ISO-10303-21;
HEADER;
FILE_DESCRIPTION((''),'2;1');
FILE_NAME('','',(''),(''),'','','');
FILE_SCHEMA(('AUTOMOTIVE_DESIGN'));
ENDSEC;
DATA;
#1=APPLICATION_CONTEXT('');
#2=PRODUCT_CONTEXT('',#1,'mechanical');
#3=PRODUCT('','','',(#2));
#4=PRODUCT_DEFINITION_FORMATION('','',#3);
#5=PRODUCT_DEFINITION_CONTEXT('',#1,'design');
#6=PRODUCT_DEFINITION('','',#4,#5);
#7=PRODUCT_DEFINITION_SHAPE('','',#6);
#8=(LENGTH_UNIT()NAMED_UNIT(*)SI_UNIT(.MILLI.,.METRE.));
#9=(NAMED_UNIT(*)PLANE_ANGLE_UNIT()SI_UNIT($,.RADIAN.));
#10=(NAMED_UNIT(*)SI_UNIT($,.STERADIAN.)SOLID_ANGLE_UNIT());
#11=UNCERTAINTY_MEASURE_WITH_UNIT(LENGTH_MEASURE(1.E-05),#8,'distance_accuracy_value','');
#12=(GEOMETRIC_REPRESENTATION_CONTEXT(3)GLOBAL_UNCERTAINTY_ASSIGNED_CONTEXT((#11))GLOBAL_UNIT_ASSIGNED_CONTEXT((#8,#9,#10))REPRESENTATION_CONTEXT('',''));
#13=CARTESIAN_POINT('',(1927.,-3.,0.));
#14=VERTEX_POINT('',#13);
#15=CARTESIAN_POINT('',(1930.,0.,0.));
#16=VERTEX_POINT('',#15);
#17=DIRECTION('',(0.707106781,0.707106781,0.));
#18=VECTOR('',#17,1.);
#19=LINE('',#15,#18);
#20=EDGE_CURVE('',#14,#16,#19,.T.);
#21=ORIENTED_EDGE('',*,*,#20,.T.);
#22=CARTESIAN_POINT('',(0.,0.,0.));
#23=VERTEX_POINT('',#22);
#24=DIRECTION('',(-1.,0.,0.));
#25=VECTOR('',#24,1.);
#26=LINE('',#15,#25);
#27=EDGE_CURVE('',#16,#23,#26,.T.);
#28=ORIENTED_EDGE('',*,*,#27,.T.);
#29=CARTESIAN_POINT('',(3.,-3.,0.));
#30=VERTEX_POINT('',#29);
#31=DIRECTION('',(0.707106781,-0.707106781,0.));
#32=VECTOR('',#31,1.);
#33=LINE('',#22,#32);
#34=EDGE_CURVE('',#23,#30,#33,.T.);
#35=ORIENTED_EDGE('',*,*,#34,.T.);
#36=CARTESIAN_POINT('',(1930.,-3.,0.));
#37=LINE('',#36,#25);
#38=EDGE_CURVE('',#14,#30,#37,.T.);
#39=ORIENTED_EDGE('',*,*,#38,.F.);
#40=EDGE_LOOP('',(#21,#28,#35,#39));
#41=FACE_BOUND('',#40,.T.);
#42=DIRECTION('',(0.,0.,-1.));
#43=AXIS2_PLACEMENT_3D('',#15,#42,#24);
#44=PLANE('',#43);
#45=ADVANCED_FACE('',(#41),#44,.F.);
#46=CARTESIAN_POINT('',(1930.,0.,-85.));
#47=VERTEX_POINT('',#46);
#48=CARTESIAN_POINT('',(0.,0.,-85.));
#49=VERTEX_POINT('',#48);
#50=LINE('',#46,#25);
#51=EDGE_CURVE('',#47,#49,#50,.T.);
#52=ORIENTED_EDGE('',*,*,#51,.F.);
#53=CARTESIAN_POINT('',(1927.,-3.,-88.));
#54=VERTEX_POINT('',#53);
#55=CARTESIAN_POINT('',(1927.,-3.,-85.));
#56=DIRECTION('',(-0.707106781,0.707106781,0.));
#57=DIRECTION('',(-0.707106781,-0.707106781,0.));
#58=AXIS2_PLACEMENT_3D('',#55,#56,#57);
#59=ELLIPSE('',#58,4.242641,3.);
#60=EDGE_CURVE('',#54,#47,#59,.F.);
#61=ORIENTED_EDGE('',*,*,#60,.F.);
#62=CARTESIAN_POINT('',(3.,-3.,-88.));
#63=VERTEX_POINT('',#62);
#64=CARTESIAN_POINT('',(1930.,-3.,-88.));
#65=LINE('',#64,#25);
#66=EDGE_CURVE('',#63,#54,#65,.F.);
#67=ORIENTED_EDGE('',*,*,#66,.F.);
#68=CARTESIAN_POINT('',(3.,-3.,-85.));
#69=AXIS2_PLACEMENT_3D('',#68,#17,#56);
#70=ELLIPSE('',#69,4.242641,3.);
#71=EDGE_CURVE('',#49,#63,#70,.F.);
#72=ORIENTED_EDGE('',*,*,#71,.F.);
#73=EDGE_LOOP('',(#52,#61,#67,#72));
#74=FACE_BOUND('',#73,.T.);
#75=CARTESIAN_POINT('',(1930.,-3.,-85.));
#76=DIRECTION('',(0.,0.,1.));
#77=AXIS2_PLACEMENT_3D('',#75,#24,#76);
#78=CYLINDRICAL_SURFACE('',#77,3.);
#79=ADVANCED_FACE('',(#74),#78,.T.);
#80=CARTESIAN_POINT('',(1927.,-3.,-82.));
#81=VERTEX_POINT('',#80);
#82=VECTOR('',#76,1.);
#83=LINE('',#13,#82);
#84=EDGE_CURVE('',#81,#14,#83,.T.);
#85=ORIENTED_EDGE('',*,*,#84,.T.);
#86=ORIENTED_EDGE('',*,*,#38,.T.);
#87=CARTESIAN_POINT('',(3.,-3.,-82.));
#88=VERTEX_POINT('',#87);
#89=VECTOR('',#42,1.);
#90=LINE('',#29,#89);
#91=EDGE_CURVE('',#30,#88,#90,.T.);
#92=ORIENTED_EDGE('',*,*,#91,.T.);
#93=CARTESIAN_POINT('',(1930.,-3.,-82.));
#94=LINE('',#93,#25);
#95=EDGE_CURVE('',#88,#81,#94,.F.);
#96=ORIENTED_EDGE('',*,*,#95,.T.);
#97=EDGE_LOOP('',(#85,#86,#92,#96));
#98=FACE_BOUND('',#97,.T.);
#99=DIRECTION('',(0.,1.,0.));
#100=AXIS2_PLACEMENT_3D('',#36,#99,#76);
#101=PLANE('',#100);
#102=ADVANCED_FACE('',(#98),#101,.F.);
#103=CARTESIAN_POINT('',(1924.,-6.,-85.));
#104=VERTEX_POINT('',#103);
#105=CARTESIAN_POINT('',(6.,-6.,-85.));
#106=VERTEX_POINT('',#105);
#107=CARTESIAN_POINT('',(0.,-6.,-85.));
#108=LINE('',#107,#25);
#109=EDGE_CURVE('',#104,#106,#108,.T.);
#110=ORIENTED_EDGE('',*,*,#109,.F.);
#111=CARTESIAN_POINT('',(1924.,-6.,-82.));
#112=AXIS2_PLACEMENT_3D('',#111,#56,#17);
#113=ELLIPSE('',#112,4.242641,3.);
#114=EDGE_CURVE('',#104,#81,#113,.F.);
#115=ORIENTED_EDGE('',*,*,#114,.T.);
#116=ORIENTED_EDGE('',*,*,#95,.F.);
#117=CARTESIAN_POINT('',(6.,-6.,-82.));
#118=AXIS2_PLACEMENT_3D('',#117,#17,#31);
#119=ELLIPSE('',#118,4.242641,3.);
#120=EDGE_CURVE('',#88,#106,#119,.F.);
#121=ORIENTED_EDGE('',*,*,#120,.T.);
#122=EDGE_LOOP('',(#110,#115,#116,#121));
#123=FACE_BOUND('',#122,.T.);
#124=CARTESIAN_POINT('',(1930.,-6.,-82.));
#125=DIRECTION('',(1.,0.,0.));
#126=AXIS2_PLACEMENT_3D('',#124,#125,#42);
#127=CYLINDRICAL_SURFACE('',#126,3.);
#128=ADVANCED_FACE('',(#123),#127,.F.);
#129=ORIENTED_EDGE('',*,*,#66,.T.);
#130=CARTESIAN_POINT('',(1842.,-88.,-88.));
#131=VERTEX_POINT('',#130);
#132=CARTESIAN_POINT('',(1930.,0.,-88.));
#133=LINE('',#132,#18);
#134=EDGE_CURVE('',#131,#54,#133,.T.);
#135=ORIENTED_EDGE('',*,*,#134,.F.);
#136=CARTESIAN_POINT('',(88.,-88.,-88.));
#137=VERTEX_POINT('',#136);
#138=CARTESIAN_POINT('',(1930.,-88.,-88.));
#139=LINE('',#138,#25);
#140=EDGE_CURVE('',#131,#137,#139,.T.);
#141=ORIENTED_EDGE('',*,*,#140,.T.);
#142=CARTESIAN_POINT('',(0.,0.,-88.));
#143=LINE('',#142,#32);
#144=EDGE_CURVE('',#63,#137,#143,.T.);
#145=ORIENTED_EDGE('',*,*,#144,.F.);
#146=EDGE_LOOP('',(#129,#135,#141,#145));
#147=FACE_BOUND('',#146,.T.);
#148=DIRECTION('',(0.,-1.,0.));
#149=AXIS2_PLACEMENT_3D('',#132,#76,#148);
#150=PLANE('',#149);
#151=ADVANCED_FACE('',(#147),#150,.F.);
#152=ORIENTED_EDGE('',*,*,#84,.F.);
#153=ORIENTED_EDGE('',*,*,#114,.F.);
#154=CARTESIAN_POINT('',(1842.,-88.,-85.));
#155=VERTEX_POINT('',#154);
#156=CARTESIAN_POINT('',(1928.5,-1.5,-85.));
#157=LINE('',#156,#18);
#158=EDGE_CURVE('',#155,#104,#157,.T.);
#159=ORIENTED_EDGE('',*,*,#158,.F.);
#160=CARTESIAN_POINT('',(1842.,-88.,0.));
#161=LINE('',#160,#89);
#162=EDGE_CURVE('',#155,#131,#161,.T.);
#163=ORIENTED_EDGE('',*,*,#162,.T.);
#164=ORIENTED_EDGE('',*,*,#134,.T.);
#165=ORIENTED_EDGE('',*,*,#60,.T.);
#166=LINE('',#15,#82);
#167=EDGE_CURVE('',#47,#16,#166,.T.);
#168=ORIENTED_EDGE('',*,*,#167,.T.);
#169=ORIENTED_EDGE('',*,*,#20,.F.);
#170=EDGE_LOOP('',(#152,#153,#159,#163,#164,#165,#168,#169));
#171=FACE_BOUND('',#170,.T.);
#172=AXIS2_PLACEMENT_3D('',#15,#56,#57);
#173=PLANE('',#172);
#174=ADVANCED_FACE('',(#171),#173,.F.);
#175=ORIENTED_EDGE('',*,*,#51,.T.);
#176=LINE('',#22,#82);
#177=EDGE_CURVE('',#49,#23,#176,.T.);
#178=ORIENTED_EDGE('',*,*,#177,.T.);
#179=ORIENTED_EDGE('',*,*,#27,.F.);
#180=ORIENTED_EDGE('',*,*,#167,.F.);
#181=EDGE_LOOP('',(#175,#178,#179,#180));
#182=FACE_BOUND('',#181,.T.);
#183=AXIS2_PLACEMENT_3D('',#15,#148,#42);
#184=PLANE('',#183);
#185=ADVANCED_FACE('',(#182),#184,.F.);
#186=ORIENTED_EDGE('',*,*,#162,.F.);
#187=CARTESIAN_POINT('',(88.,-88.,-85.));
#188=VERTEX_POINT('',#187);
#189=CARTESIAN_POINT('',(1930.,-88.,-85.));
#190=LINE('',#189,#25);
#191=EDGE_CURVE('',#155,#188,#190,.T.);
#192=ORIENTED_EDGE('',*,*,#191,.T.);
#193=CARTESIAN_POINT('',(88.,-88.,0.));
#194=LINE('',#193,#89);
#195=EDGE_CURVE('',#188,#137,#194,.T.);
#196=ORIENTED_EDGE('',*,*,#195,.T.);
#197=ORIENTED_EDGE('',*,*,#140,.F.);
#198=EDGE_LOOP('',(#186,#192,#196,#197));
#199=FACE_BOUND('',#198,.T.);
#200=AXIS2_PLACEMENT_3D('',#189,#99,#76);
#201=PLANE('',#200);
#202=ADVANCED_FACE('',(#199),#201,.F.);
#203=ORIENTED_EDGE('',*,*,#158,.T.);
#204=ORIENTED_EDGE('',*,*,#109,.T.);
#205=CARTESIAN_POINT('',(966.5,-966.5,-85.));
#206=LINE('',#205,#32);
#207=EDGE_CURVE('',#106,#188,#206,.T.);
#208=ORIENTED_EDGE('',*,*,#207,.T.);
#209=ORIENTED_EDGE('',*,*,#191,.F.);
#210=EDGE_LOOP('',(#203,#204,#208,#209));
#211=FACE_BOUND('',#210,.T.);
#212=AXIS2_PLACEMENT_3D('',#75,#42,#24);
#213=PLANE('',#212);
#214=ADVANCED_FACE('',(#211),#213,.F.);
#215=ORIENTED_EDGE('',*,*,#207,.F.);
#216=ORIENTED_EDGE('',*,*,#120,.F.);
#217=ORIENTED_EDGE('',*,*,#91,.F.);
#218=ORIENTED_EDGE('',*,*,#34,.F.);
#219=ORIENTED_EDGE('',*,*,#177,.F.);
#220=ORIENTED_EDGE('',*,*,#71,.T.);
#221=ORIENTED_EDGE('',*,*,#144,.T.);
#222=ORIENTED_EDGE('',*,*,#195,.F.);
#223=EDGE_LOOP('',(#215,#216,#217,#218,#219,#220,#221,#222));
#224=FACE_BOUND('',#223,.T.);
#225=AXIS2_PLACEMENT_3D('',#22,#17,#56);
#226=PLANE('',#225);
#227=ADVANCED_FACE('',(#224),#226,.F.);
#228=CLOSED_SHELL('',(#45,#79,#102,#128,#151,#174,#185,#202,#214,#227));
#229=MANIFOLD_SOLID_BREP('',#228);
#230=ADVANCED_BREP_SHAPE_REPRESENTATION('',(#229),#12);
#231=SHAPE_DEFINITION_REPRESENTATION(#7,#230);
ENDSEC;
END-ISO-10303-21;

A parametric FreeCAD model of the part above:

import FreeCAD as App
import Part
import Sketcher

V = App.Vector


def edges_at(feature, points):
    """Names of the edges that pass closest to the given points."""
    edges = feature.Shape.Edges
    near = lambda p: min(range(len(edges)), key=lambda i: edges[i].distToShape(Part.Vertex(*p))[0])
    return sorted({f"Edge{near(p) + 1}" for p in points})


def add_polygon(sketch, points):
    """Adds a closed chain of lines whose ends are joined by coincident constraints."""
    first, n = sketch.GeometryCount, len(points)
    for a, b in zip(points, points[1:] + points[:1]):
        sketch.addGeometry(Part.LineSegment(App.Vector(*a, 0), App.Vector(*b, 0)), False)
    for i in range(n):
        sketch.addConstraint(Sketcher.Constraint("Coincident", first + i, 2, first + (i + 1) % n, 1))

doc = App.newDocument("Part")
body = doc.addObject("PartDesign::Body", "Body")

# Sketch on YZ plane
sketch1 = body.newObject("Sketcher::SketchObject", "Sketch")
sketch1.AttachmentSupport = (doc.getObject("YZ_Plane"), [""])
sketch1.MapMode = "FlatFace"
add_polygon(sketch1, [(0, -88), (0, 0), (-3, 0), (-3, -85), (-88, -85), (-88, -88)])  # lines 0-5
sketch1.addConstraint([
    Sketcher.Constraint("Vertical", 0),
    Sketcher.Constraint("Horizontal", 1),
    Sketcher.Constraint("Vertical", 2),
    Sketcher.Constraint("Horizontal", 3),
    Sketcher.Constraint("Vertical", 4),
    Sketcher.Constraint("Horizontal", 5),
    Sketcher.Constraint("Coincident", 0, 2, -1, 1),
    Sketcher.Constraint("Equal", 5, 0),
    Sketcher.Constraint("Equal", 3, 2),
    Sketcher.Constraint("DistanceX", 1, 2, 1, 1, 3.0),
    Sketcher.Constraint("DistanceX", 3, 2, 3, 1, 85.0),
])
pad1 = body.newObject("PartDesign::Pad", "Pad")
pad1.Profile = sketch1
pad1.Length = 1930
doc.recompute()

fillet = body.newObject("PartDesign::Fillet", "Fillet")
fillet.Base = (pad1, edges_at(pad1, [(965, 0, -88), (965, -3, -85)]))
fillet.Radius = 3

# Sketch on XY plane
sketch2 = body.newObject("Sketcher::SketchObject", "Sketch001")
sketch2.AttachmentSupport = (doc.getObject("XY_Plane"), [""])
sketch2.MapMode = "FlatFace"
sketch2.AttachmentOffset = App.Placement(V(0, 0, -88), App.Rotation())
add_polygon(sketch2, [(0, 0), (88, -88), (0, -88)])  # lines 0-2
sketch2.addConstraint([
    Sketcher.Constraint("Horizontal", 1),
    Sketcher.Constraint("Vertical", 2),
    Sketcher.Constraint("Coincident", 2, 2, -1, 1),
    Sketcher.Constraint("Equal", 1, 2),
    Sketcher.Constraint("DistanceX", 1, 2, 1, 1, 88.0),
])
pocket1 = body.newObject("PartDesign::Pocket", "Pocket")
pocket1.Profile = sketch2
pocket1.Length = 88
pocket1.Reversed = True

# Sketch on XY plane
sketch3 = body.newObject("Sketcher::SketchObject", "Sketch002")
sketch3.AttachmentSupport = (doc.getObject("XY_Plane"), [""])
sketch3.MapMode = "FlatFace"
sketch3.AttachmentOffset = App.Placement(V(0, 0, -88), App.Rotation())
add_polygon(sketch3, [(1842, -88), (1930, 0), (1930, -88)])  # lines 0-2
sketch3.addConstraint([
    Sketcher.Constraint("Vertical", 1),
    Sketcher.Constraint("Horizontal", 2),
    Sketcher.Constraint("PointOnObject", 0, 2, -1),
    Sketcher.Constraint("Equal", 2, 1),
    Sketcher.Constraint("DistanceX", 2, 2, 2, 1, 88.0),
    Sketcher.Constraint("DistanceX", -1, 1, 0, 2, 1930.0),
])
pocket2 = body.newObject("PartDesign::Pocket", "Pocket001")
pocket2.Profile = sketch3
pocket2.Length = 88
pocket2.Reversed = True

doc.recompute()
